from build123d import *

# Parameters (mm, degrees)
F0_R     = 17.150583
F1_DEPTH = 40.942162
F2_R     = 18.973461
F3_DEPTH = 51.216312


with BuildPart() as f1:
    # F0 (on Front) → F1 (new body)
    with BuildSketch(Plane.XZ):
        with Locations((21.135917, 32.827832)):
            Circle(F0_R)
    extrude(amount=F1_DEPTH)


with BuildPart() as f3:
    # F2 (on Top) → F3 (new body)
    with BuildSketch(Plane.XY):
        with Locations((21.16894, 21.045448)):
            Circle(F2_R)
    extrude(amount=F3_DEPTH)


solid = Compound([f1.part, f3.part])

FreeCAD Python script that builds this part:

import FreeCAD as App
import Part
import Sketcher

V = App.Vector
Q = App.Units.Quantity

doc = App.newDocument("Part")
body = doc.addObject("PartDesign::Body", "Body")

sketch1 = body.newObject("Sketcher::SketchObject", "Sketch")
sketch1.AttachmentSupport = (doc.getObject("XZ_Plane"), [""])
sketch1.MapMode = "FlatFace"
sketch1.addGeometry(Part.Circle(V(21, 33, 0), V(0, 0, 1), 17), False)
sketch1.addConstraint(Sketcher.Constraint("Diameter", 0, Q("34.301166 mm")))
sketch1.addConstraint(Sketcher.Constraint("DistanceX", -1, 1, 0, 3, Q("21.135917 mm")))
sketch1.addConstraint(Sketcher.Constraint("DistanceY", -1, 1, 0, 3, Q("32.827832 mm")))
pad1 = body.newObject("PartDesign::Pad", "Pad")
pad1.Profile = sketch1
pad1.Length = 40.942162
body2 = doc.addObject("PartDesign::Body", "Body001")

sketch2 = body2.newObject("Sketcher::SketchObject", "Sketch001")
sketch2.AttachmentSupport = (doc.getObject("XY_Plane001"), [""])
sketch2.MapMode = "FlatFace"
sketch2.addGeometry(Part.Circle(V(21, 21, 0), V(0, 0, 1), 19), False)
sketch2.addConstraint(Sketcher.Constraint("Diameter", 0, Q("37.946922 mm")))
sketch2.addConstraint(Sketcher.Constraint("DistanceX", -1, 1, 0, 3, Q("21.16894 mm")))
sketch2.addConstraint(Sketcher.Constraint("DistanceY", -1, 1, 0, 3, Q("21.045448 mm")))
pad2 = body2.newObject("PartDesign::Pad", "Pad001")
pad2.Profile = sketch2
pad2.Length = 51.216312

doc.recompute()
